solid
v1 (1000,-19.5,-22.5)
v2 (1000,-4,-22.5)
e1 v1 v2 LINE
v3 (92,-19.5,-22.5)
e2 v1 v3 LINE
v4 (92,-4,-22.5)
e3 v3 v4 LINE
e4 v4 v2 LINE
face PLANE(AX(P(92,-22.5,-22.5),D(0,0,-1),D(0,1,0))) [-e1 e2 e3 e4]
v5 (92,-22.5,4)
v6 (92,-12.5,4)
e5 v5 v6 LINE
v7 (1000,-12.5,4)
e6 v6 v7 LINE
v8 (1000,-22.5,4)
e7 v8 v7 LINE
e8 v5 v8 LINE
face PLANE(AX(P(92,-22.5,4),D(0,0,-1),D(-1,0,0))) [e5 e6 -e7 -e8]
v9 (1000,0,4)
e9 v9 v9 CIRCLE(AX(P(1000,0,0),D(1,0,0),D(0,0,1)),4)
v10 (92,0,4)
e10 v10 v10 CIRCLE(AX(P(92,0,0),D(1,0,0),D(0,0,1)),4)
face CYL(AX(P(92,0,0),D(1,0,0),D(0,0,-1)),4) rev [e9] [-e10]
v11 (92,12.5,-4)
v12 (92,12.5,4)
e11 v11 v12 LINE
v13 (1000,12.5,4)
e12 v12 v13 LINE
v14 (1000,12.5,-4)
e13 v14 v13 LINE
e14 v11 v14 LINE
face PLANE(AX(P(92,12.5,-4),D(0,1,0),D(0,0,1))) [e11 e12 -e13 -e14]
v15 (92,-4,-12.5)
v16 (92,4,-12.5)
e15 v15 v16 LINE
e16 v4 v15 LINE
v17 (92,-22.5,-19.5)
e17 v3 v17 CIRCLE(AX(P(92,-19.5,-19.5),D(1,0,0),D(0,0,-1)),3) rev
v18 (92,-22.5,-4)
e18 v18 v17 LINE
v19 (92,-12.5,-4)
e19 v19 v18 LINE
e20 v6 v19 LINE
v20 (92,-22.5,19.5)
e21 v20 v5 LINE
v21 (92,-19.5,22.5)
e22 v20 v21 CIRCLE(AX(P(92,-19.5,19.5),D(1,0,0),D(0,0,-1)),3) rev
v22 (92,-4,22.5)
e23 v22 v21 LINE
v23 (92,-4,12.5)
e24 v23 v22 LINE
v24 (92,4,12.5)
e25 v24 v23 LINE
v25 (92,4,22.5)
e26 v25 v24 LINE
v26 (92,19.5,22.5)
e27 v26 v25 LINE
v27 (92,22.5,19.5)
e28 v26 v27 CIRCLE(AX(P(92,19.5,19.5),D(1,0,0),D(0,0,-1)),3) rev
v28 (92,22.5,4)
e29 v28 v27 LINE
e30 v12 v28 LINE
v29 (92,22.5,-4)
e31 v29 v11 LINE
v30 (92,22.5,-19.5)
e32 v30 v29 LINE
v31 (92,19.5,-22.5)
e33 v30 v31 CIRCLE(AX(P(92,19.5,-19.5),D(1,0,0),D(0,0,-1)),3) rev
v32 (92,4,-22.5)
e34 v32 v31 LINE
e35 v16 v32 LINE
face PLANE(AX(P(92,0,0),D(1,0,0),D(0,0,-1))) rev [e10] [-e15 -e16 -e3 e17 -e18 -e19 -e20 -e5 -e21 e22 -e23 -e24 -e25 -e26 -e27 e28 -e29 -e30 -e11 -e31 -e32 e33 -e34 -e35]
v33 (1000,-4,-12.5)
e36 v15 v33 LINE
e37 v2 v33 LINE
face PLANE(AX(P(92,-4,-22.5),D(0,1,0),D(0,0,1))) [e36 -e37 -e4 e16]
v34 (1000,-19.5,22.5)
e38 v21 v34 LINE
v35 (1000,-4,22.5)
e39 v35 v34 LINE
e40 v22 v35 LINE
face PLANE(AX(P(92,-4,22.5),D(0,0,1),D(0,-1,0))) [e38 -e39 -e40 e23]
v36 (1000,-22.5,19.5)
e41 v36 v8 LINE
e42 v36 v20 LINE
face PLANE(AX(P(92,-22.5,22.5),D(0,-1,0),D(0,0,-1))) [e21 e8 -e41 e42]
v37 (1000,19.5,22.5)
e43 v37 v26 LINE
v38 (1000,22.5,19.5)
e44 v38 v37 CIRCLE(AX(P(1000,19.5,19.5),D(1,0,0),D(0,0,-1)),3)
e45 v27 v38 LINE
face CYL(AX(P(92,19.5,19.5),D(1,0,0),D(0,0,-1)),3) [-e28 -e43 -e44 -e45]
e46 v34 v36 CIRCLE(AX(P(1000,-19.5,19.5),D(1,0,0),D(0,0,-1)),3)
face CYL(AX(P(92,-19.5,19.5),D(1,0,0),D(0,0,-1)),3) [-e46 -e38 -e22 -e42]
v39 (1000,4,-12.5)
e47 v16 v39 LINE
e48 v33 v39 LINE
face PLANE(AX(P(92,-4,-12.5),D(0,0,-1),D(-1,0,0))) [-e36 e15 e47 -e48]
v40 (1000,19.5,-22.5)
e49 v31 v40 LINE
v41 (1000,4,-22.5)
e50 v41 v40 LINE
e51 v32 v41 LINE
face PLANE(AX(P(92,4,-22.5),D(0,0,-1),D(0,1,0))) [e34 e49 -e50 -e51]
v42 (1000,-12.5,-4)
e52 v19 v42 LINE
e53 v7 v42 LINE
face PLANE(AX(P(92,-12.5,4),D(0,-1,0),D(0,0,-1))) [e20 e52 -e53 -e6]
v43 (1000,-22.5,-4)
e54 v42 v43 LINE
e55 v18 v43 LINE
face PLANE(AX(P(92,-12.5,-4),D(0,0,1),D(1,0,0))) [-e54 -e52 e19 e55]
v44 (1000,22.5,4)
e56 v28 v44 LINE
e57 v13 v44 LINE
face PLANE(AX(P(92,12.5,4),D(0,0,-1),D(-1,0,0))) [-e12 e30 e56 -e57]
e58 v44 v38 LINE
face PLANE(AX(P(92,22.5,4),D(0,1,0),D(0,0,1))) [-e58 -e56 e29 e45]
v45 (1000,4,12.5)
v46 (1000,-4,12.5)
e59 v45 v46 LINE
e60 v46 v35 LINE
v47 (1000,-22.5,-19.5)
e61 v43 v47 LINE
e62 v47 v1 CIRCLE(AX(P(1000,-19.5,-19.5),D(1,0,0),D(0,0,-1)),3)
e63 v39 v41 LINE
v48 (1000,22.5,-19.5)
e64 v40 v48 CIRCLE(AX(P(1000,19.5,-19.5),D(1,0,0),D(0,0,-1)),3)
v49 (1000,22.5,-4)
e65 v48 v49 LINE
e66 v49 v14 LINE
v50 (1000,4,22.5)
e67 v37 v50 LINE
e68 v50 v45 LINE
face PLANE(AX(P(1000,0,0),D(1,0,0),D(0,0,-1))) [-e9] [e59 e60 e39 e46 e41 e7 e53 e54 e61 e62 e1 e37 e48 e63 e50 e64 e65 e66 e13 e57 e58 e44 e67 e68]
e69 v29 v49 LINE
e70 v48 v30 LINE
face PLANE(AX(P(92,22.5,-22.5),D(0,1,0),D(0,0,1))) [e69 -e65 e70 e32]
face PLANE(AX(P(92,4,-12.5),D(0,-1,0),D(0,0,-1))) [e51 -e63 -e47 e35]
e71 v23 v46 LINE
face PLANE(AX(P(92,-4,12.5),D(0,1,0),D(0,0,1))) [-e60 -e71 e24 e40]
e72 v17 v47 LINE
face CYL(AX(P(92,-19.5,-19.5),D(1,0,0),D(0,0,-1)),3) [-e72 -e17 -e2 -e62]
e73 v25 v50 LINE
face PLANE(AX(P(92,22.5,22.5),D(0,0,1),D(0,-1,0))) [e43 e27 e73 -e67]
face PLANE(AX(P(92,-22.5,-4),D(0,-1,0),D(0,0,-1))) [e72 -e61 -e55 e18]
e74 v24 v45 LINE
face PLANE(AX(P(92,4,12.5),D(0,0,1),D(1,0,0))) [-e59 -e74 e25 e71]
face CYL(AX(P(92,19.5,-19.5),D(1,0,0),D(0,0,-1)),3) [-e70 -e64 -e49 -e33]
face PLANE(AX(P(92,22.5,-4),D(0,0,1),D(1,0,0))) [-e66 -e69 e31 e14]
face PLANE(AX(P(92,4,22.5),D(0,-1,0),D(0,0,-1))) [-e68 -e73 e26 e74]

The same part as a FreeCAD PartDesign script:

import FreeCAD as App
import Part
import Sketcher
Q = App.Units.Quantity


def edges_at(feature, points):
    """Names of the edges that pass closest to the given points."""
    edges = feature.Shape.Edges
    near = lambda p: min(range(len(edges)), key=lambda i: edges[i].distToShape(Part.Vertex(*p))[0])
    return sorted({f"Edge{near(p) + 1}" for p in points})

doc = App.newDocument("Part")
body = doc.addObject("PartDesign::Body", "Body")

# Sketch on YZ plane
sketch1 = body.newObject("Sketcher::SketchObject", "Sketch")
sketch1.AttachmentSupport = (doc.getObject("YZ_Plane"), [""])
sketch1.MapMode = "FlatFace"
sketch1.AttachmentOffset = App.Placement(App.Vector(0, 0, 1000), App.Rotation())
sketch1.addGeometry([
    Part.LineSegment(App.Vector(-4, -22.5, 0), App.Vector(-4, -12.5, 0)),  # 0
    Part.LineSegment(App.Vector(-4, -12.5, 0), App.Vector(4, -12.5, 0)),  # 1
    Part.LineSegment(App.Vector(4, -12.5, 0), App.Vector(4, -22.5, 0)),  # 2
    Part.LineSegment(App.Vector(4, -22.5, 0), App.Vector(22.5, -22.5, 0)),  # 3
    Part.LineSegment(App.Vector(22.5, -22.5, 0), App.Vector(22.5, -4, 0)),  # 4
    Part.LineSegment(App.Vector(22.5, -4, 0), App.Vector(12.5, -4, 0)),  # 5
    Part.LineSegment(App.Vector(12.5, -4, 0), App.Vector(12.5, 4, 0)),  # 6
    Part.LineSegment(App.Vector(12.5, 4, 0), App.Vector(22.5, 4, 0)),  # 7
    Part.LineSegment(App.Vector(22.5, 4, 0), App.Vector(22.5, 22.5, 0)),  # 8
    Part.LineSegment(App.Vector(22.5, 22.5, 0), App.Vector(4, 22.5, 0)),  # 9
    Part.LineSegment(App.Vector(4, 22.5, 0), App.Vector(4, 12.5, 0)),  # 10
    Part.LineSegment(App.Vector(4, 12.5, 0), App.Vector(-4, 12.5, 0)),  # 11
    Part.LineSegment(App.Vector(-4, 12.5, 0), App.Vector(-4, 22.5, 0)),  # 12
    Part.LineSegment(App.Vector(-4, 22.5, 0), App.Vector(-22.5, 22.5, 0)),  # 13
    Part.LineSegment(App.Vector(-22.5, 22.5, 0), App.Vector(-22.5, 4, 0)),  # 14
    Part.LineSegment(App.Vector(-22.5, 4, 0), App.Vector(-12.5, 4, 0)),  # 15
    Part.LineSegment(App.Vector(-12.5, 4, 0), App.Vector(-12.5, -4, 0)),  # 16
    Part.LineSegment(App.Vector(-12.5, -4, 0), App.Vector(-22.5, -4, 0)),  # 17
    Part.LineSegment(App.Vector(-22.5, -4, 0), App.Vector(-22.5, -22.5, 0)),  # 18
    Part.LineSegment(App.Vector(-22.5, -22.5, 0), App.Vector(-4, -22.5, 0)),  # 19
    Part.Circle(App.Vector(0, 0, 0), App.Vector(0, 0, 1), 4),  # 20
], False)
sketch1.addConstraint([
    Sketcher.Constraint("Coincident", 0, 2, 1, 1),
    Sketcher.Constraint("Coincident", 1, 2, 2, 1),
    Sketcher.Constraint("Coincident", 2, 2, 3, 1),
    Sketcher.Constraint("Coincident", 3, 2, 4, 1),
    Sketcher.Constraint("Coincident", 4, 2, 5, 1),
    Sketcher.Constraint("Coincident", 5, 2, 6, 1),
    Sketcher.Constraint("Coincident", 6, 2, 7, 1),
    Sketcher.Constraint("Coincident", 7, 2, 8, 1),
    Sketcher.Constraint("Coincident", 8, 2, 9, 1),
    Sketcher.Constraint("Coincident", 9, 2, 10, 1),
    Sketcher.Constraint("Coincident", 10, 2, 11, 1),
    Sketcher.Constraint("Coincident", 11, 2, 12, 1),
    Sketcher.Constraint("Coincident", 12, 2, 13, 1),
    Sketcher.Constraint("Coincident", 13, 2, 14, 1),
    Sketcher.Constraint("Coincident", 14, 2, 15, 1),
    Sketcher.Constraint("Coincident", 15, 2, 16, 1),
    Sketcher.Constraint("Coincident", 16, 2, 17, 1),
    Sketcher.Constraint("Coincident", 17, 2, 18, 1),
    Sketcher.Constraint("Coincident", 18, 2, 19, 1),
    Sketcher.Constraint("Coincident", 19, 2, 0, 1),
    Sketcher.Constraint("Vertical", 0),
    Sketcher.Constraint("Horizontal", 1),
    Sketcher.Constraint("Vertical", 2),
    Sketcher.Constraint("Horizontal", 3),
    Sketcher.Constraint("Vertical", 4),
    Sketcher.Constraint("Horizontal", 5),
    Sketcher.Constraint("Vertical", 6),
    Sketcher.Constraint("Horizontal", 7),
    Sketcher.Constraint("Vertical", 8),
    Sketcher.Constraint("Horizontal", 9),
    Sketcher.Constraint("Vertical", 10),
    Sketcher.Constraint("Horizontal", 11),
    Sketcher.Constraint("Vertical", 12),
    Sketcher.Constraint("Horizontal", 13),
    Sketcher.Constraint("Vertical", 14),
    Sketcher.Constraint("Horizontal", 15),
    Sketcher.Constraint("Vertical", 16),
    Sketcher.Constraint("Horizontal", 17),
    Sketcher.Constraint("Vertical", 18),
    Sketcher.Constraint("Horizontal", 19),
    Sketcher.Constraint("Coincident", 20, 3, -1, 1),
    Sketcher.Constraint("Symmetric", 0, 2, 10, 2, -1, 1),
    Sketcher.Constraint("Symmetric", 2, 2, 12, 2, -1, 1),
    Sketcher.Constraint("Symmetric", 4, 2, 14, 2, -1, 1),
    Sketcher.Constraint("Symmetric", 6, 2, 16, 2, -1, 1),
    Sketcher.Constraint("Symmetric", 8, 2, 18, 2, -1, 1),
    Sketcher.Constraint("Symmetric", 9, 2, 12, 2, -2),
    Sketcher.Constraint("Symmetric", 7, 2, 14, 2, -2),
    Sketcher.Constraint("Equal", 17, 0),
    Sketcher.Constraint("Equal", 19, 4),
    Sketcher.Constraint("Equal", 11, 6),
    Sketcher.Constraint("Diameter", 20, Q("8 mm")),
    Sketcher.Constraint("DistanceX", 1, 1, 1, 2, Q("8 mm")),
    Sketcher.Constraint("DistanceX", 5, 2, 5, 1, Q("10 mm")),
    Sketcher.Constraint("DistanceX", 3, 1, 3, 2, Q("18.5 mm")),
])
pad1 = body.newObject("PartDesign::Pad", "Pad")
pad1.Profile = sketch1
pad1.Length = 908
pad1.Reversed = True
doc.recompute()

fillet = body.newObject("PartDesign::Fillet", "Fillet")
fillet.Base = (pad1, edges_at(pad1, [
    (546, -22.5, -22.5),
    (546, -22.5, 22.5),
    (546, 22.5, 22.5),
    (546, 22.5, -22.5),
]))
fillet.Radius = 3

doc.recompute()
